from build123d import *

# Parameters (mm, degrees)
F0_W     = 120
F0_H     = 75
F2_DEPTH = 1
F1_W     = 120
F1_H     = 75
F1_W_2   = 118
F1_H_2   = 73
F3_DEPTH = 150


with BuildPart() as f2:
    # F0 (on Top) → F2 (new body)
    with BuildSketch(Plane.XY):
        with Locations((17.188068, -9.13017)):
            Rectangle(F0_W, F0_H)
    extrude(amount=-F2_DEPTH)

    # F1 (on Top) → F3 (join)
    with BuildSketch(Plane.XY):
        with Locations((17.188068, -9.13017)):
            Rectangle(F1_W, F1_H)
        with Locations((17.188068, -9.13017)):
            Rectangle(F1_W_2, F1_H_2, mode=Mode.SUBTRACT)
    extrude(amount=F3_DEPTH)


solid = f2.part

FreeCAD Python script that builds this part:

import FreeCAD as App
import Part
import Sketcher

V = App.Vector

doc = App.newDocument("Part")
params = doc.addObject("Spreadsheet::Sheet", "Params")
for row, (alias, value) in enumerate([
    ("sketch1_width", "120 mm"),
    ("sketch1_height", "75 mm"),
    ("pad1_length", "1 mm"),
    ("sketch2_width", "120 mm"),
    ("sketch2_width2", "118 mm"),
    ("sketch2_height", "75 mm"),
    ("sketch2_height2", "73 mm"),
    ("pad2_length", "150 mm"),
], start=1):
    params.set(f"A{row}", alias)
    params.set(f"B{row}", "=" + value)
    params.setAlias(f"B{row}", alias)

body = doc.addObject("PartDesign::Body", "Body")

# Sketch on XY plane
sketch1 = doc.addObject("Sketcher::SketchObject", "Sketch")
body.addObject(sketch1)
sketch1.AttachmentSupport = (doc.XY_Plane, [""])
sketch1.MapMode = "FlatFace"
sketch1.addGeometry([
    Part.LineSegment(V(-43, 28, 0), V(-43, -47, 0)),
    Part.LineSegment(V(-43, -47, 0), V(77, -47, 0)),
    Part.LineSegment(V(77, -47, 0), V(77, 28, 0)),
    Part.LineSegment(V(77, 28, 0), V(-43, 28, 0)),
], False)
sketch1.addConstraint([
    Sketcher.Constraint("Coincident", 0, 2, 1, 1),
    Sketcher.Constraint("Coincident", 1, 2, 2, 1),
    Sketcher.Constraint("Coincident", 2, 2, 3, 1),
    Sketcher.Constraint("Coincident", 3, 2, 0, 1),
    Sketcher.Constraint("Vertical", 0),
    Sketcher.Constraint("Horizontal", 1),
    Sketcher.Constraint("Vertical", 2),
    Sketcher.Constraint("Horizontal", 3),
    Sketcher.Constraint("DistanceX", 1, 1, 1, 2, 120.0),
    Sketcher.Constraint("DistanceY", 0, 2, 0, 1, 75.0),
    Sketcher.Constraint("DistanceY", 0, 2, -1, 1, 46.63017),
    Sketcher.Constraint("DistanceX", -1, 1, 1, 2, 77.188068),
])
sketch1.setExpression("Constraints[8]", "Params.sketch1_width")
sketch1.setExpression("Constraints[9]", "Params.sketch1_height")
pad1 = doc.addObject("PartDesign::Pad", "Pad")
body.addObject(pad1)
pad1.Profile = sketch1
pad1.setExpression("Length", "Params.pad1_length")
pad1.Reversed = True

# Sketch on XY plane
sketch2 = doc.addObject("Sketcher::SketchObject", "Sketch001")
body.addObject(sketch2)
sketch2.AttachmentSupport = (doc.XY_Plane, [""])
sketch2.MapMode = "FlatFace"
sketch2.addGeometry([
    Part.LineSegment(V(-43, 28, 0), V(-43, -47, 0)),  # 0
    Part.LineSegment(V(-43, -47, 0), V(77, -47, 0)),  # 1
    Part.LineSegment(V(77, -47, 0), V(77, 28, 0)),  # 2
    Part.LineSegment(V(77, 28, 0), V(-43, 28, 0)),  # 3
    Part.LineSegment(V(76, -46, 0), V(-42, -46, 0)),  # 4
    Part.LineSegment(V(-42, -46, 0), V(-42, 27, 0)),  # 5
    Part.LineSegment(V(-42, 27, 0), V(76, 27, 0)),  # 6
    Part.LineSegment(V(76, 27, 0), V(76, -46, 0)),  # 7
], False)
sketch2.addConstraint([
    Sketcher.Constraint("Coincident", 0, 2, 1, 1),
    Sketcher.Constraint("Coincident", 1, 2, 2, 1),
    Sketcher.Constraint("Coincident", 2, 2, 3, 1),
    Sketcher.Constraint("Coincident", 3, 2, 0, 1),
    Sketcher.Constraint("Coincident", 4, 2, 5, 1),
    Sketcher.Constraint("Coincident", 5, 2, 6, 1),
    Sketcher.Constraint("Coincident", 6, 2, 7, 1),
    Sketcher.Constraint("Coincident", 7, 2, 4, 1),
    Sketcher.Constraint("Vertical", 0),
    Sketcher.Constraint("Horizontal", 1),
    Sketcher.Constraint("Vertical", 2),
    Sketcher.Constraint("Horizontal", 3),
    Sketcher.Constraint("Horizontal", 4),
    Sketcher.Constraint("Vertical", 5),
    Sketcher.Constraint("Horizontal", 6),
    Sketcher.Constraint("Vertical", 7),
    Sketcher.Constraint("DistanceX", 1, 1, 1, 2, 120.0),
    Sketcher.Constraint("DistanceX", 4, 2, 4, 1, 118.0),
    Sketcher.Constraint("DistanceY", 0, 2, 0, 1, 75.0),
    Sketcher.Constraint("DistanceY", 5, 1, 5, 2, 73.0),
    Sketcher.Constraint("DistanceX", 0, 2, 4, 2, 1.0),
    Sketcher.Constraint("DistanceY", 0, 2, 4, 2, 1.0),
    Sketcher.Constraint("DistanceY", 0, 2, -1, 1, 46.63017),
    Sketcher.Constraint("DistanceX", -1, 1, 1, 2, 77.188068),
])
sketch2.setExpression("Constraints[16]", "Params.sketch2_width")
sketch2.setExpression("Constraints[17]", "Params.sketch2_width2")
sketch2.setExpression("Constraints[18]", "Params.sketch2_height")
sketch2.setExpression("Constraints[19]", "Params.sketch2_height2")
pad2 = doc.addObject("PartDesign::Pad", "Pad001")
body.addObject(pad2)
pad2.Profile = sketch2
pad2.setExpression("Length", "Params.pad2_length")

doc.recompute()
